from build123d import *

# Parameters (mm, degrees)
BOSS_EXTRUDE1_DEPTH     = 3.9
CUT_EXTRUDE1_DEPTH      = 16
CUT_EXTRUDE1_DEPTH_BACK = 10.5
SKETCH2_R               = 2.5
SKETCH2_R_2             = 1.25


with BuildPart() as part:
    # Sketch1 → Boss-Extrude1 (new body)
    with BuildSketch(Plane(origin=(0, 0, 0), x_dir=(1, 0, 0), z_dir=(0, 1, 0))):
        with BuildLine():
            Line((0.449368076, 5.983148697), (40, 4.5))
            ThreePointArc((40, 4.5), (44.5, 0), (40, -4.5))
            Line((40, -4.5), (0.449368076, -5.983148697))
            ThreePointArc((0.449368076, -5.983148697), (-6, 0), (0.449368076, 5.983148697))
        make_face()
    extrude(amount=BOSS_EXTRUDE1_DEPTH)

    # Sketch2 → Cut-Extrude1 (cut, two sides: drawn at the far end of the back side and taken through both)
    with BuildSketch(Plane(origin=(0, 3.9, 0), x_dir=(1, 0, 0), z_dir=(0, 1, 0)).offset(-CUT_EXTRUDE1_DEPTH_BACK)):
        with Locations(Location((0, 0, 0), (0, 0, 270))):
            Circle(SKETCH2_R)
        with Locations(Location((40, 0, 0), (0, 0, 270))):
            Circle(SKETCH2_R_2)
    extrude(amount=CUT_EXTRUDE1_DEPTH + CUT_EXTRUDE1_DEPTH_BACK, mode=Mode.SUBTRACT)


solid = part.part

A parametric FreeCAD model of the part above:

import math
import FreeCAD as App
import Part
import Sketcher

V = App.Vector

doc = App.newDocument("Part")
body = doc.addObject("PartDesign::Body", "Body")

sketch1 = body.newObject("Sketcher::SketchObject", "Sketch")
sketch1.AttachmentSupport = (doc.getObject("XZ_Plane"), [""])
sketch1.MapMode = "FlatFace"
sketch1.addGeometry([
    Part.LineSegment(V(40, -4.5, 0), V(0.4, -6, 0)),
    Part.ArcOfCircle(Part.Circle(V(0, 0, 0), V(0, 0, 1), 6), math.radians(86), math.radians(274)),
    Part.LineSegment(V(0.4, 6, 0), V(40, 4.5, 0)),
    Part.ArcOfCircle(Part.Circle(V(40, 0, 0), V(0, 0, 1), 4.5), math.radians(-90), math.radians(90)),
], False)
sketch1.addConstraint([
    Sketcher.Constraint("Coincident", 0, 2, 1, 2),
    Sketcher.Constraint("Coincident", 1, 1, 2, 1),
    Sketcher.Constraint("Coincident", 2, 2, 3, 2),
    Sketcher.Constraint("Coincident", 3, 1, 0, 1),
    Sketcher.Constraint("Coincident", 1, 3, -1, 1),
    Sketcher.Constraint("Symmetric", 2, 2, 3, 1, -1),
    Sketcher.Constraint("Vertical", 0, 2, 1, 1),
    Sketcher.Constraint("Vertical", 3, 3, 2, 2),
    Sketcher.Constraint("Radius", 1, 6.0),
    Sketcher.Constraint("Radius", 3, 4.5),
    Sketcher.Constraint("DistanceX", -1, 1, 3, 3, 40.0),
    Sketcher.Constraint("Distance", 0, 39.578431),
])
pad1 = body.newObject("PartDesign::Pad", "Pad")
pad1.Profile = sketch1
pad1.Length = 3.9
pad1.Reversed = True

sketch2 = body.newObject("Sketcher::SketchObject", "Sketch001")
sketch2.AttachmentSupport = (doc.getObject("XZ_Plane"), [""])
sketch2.MapMode = "FlatFace"
sketch2.AttachmentOffset = App.Placement(V(0, 0, -3.9), App.Rotation())
sketch2.addGeometry([
    Part.Circle(V(0, 0, 0), V(0, 0, 1), 2.5),
    Part.Circle(V(40, 0, 0), V(0, 0, 1), 1.2),
], False)
sketch2.addConstraint([
    Sketcher.Constraint("Coincident", 0, 3, -1, 1),
    Sketcher.Constraint("PointOnObject", 1, 3, -1),
    Sketcher.Constraint("Diameter", 0, 5.0),
    Sketcher.Constraint("Diameter", 1, 2.5),
    Sketcher.Constraint("DistanceX", -1, 1, 1, 3, 40.0),
])
pocket1 = body.newObject("PartDesign::Pocket", "Pocket")
pocket1.Profile = sketch2
pocket1.Type = "ThroughAll"
pocket1.Midplane = True

doc.recompute()
